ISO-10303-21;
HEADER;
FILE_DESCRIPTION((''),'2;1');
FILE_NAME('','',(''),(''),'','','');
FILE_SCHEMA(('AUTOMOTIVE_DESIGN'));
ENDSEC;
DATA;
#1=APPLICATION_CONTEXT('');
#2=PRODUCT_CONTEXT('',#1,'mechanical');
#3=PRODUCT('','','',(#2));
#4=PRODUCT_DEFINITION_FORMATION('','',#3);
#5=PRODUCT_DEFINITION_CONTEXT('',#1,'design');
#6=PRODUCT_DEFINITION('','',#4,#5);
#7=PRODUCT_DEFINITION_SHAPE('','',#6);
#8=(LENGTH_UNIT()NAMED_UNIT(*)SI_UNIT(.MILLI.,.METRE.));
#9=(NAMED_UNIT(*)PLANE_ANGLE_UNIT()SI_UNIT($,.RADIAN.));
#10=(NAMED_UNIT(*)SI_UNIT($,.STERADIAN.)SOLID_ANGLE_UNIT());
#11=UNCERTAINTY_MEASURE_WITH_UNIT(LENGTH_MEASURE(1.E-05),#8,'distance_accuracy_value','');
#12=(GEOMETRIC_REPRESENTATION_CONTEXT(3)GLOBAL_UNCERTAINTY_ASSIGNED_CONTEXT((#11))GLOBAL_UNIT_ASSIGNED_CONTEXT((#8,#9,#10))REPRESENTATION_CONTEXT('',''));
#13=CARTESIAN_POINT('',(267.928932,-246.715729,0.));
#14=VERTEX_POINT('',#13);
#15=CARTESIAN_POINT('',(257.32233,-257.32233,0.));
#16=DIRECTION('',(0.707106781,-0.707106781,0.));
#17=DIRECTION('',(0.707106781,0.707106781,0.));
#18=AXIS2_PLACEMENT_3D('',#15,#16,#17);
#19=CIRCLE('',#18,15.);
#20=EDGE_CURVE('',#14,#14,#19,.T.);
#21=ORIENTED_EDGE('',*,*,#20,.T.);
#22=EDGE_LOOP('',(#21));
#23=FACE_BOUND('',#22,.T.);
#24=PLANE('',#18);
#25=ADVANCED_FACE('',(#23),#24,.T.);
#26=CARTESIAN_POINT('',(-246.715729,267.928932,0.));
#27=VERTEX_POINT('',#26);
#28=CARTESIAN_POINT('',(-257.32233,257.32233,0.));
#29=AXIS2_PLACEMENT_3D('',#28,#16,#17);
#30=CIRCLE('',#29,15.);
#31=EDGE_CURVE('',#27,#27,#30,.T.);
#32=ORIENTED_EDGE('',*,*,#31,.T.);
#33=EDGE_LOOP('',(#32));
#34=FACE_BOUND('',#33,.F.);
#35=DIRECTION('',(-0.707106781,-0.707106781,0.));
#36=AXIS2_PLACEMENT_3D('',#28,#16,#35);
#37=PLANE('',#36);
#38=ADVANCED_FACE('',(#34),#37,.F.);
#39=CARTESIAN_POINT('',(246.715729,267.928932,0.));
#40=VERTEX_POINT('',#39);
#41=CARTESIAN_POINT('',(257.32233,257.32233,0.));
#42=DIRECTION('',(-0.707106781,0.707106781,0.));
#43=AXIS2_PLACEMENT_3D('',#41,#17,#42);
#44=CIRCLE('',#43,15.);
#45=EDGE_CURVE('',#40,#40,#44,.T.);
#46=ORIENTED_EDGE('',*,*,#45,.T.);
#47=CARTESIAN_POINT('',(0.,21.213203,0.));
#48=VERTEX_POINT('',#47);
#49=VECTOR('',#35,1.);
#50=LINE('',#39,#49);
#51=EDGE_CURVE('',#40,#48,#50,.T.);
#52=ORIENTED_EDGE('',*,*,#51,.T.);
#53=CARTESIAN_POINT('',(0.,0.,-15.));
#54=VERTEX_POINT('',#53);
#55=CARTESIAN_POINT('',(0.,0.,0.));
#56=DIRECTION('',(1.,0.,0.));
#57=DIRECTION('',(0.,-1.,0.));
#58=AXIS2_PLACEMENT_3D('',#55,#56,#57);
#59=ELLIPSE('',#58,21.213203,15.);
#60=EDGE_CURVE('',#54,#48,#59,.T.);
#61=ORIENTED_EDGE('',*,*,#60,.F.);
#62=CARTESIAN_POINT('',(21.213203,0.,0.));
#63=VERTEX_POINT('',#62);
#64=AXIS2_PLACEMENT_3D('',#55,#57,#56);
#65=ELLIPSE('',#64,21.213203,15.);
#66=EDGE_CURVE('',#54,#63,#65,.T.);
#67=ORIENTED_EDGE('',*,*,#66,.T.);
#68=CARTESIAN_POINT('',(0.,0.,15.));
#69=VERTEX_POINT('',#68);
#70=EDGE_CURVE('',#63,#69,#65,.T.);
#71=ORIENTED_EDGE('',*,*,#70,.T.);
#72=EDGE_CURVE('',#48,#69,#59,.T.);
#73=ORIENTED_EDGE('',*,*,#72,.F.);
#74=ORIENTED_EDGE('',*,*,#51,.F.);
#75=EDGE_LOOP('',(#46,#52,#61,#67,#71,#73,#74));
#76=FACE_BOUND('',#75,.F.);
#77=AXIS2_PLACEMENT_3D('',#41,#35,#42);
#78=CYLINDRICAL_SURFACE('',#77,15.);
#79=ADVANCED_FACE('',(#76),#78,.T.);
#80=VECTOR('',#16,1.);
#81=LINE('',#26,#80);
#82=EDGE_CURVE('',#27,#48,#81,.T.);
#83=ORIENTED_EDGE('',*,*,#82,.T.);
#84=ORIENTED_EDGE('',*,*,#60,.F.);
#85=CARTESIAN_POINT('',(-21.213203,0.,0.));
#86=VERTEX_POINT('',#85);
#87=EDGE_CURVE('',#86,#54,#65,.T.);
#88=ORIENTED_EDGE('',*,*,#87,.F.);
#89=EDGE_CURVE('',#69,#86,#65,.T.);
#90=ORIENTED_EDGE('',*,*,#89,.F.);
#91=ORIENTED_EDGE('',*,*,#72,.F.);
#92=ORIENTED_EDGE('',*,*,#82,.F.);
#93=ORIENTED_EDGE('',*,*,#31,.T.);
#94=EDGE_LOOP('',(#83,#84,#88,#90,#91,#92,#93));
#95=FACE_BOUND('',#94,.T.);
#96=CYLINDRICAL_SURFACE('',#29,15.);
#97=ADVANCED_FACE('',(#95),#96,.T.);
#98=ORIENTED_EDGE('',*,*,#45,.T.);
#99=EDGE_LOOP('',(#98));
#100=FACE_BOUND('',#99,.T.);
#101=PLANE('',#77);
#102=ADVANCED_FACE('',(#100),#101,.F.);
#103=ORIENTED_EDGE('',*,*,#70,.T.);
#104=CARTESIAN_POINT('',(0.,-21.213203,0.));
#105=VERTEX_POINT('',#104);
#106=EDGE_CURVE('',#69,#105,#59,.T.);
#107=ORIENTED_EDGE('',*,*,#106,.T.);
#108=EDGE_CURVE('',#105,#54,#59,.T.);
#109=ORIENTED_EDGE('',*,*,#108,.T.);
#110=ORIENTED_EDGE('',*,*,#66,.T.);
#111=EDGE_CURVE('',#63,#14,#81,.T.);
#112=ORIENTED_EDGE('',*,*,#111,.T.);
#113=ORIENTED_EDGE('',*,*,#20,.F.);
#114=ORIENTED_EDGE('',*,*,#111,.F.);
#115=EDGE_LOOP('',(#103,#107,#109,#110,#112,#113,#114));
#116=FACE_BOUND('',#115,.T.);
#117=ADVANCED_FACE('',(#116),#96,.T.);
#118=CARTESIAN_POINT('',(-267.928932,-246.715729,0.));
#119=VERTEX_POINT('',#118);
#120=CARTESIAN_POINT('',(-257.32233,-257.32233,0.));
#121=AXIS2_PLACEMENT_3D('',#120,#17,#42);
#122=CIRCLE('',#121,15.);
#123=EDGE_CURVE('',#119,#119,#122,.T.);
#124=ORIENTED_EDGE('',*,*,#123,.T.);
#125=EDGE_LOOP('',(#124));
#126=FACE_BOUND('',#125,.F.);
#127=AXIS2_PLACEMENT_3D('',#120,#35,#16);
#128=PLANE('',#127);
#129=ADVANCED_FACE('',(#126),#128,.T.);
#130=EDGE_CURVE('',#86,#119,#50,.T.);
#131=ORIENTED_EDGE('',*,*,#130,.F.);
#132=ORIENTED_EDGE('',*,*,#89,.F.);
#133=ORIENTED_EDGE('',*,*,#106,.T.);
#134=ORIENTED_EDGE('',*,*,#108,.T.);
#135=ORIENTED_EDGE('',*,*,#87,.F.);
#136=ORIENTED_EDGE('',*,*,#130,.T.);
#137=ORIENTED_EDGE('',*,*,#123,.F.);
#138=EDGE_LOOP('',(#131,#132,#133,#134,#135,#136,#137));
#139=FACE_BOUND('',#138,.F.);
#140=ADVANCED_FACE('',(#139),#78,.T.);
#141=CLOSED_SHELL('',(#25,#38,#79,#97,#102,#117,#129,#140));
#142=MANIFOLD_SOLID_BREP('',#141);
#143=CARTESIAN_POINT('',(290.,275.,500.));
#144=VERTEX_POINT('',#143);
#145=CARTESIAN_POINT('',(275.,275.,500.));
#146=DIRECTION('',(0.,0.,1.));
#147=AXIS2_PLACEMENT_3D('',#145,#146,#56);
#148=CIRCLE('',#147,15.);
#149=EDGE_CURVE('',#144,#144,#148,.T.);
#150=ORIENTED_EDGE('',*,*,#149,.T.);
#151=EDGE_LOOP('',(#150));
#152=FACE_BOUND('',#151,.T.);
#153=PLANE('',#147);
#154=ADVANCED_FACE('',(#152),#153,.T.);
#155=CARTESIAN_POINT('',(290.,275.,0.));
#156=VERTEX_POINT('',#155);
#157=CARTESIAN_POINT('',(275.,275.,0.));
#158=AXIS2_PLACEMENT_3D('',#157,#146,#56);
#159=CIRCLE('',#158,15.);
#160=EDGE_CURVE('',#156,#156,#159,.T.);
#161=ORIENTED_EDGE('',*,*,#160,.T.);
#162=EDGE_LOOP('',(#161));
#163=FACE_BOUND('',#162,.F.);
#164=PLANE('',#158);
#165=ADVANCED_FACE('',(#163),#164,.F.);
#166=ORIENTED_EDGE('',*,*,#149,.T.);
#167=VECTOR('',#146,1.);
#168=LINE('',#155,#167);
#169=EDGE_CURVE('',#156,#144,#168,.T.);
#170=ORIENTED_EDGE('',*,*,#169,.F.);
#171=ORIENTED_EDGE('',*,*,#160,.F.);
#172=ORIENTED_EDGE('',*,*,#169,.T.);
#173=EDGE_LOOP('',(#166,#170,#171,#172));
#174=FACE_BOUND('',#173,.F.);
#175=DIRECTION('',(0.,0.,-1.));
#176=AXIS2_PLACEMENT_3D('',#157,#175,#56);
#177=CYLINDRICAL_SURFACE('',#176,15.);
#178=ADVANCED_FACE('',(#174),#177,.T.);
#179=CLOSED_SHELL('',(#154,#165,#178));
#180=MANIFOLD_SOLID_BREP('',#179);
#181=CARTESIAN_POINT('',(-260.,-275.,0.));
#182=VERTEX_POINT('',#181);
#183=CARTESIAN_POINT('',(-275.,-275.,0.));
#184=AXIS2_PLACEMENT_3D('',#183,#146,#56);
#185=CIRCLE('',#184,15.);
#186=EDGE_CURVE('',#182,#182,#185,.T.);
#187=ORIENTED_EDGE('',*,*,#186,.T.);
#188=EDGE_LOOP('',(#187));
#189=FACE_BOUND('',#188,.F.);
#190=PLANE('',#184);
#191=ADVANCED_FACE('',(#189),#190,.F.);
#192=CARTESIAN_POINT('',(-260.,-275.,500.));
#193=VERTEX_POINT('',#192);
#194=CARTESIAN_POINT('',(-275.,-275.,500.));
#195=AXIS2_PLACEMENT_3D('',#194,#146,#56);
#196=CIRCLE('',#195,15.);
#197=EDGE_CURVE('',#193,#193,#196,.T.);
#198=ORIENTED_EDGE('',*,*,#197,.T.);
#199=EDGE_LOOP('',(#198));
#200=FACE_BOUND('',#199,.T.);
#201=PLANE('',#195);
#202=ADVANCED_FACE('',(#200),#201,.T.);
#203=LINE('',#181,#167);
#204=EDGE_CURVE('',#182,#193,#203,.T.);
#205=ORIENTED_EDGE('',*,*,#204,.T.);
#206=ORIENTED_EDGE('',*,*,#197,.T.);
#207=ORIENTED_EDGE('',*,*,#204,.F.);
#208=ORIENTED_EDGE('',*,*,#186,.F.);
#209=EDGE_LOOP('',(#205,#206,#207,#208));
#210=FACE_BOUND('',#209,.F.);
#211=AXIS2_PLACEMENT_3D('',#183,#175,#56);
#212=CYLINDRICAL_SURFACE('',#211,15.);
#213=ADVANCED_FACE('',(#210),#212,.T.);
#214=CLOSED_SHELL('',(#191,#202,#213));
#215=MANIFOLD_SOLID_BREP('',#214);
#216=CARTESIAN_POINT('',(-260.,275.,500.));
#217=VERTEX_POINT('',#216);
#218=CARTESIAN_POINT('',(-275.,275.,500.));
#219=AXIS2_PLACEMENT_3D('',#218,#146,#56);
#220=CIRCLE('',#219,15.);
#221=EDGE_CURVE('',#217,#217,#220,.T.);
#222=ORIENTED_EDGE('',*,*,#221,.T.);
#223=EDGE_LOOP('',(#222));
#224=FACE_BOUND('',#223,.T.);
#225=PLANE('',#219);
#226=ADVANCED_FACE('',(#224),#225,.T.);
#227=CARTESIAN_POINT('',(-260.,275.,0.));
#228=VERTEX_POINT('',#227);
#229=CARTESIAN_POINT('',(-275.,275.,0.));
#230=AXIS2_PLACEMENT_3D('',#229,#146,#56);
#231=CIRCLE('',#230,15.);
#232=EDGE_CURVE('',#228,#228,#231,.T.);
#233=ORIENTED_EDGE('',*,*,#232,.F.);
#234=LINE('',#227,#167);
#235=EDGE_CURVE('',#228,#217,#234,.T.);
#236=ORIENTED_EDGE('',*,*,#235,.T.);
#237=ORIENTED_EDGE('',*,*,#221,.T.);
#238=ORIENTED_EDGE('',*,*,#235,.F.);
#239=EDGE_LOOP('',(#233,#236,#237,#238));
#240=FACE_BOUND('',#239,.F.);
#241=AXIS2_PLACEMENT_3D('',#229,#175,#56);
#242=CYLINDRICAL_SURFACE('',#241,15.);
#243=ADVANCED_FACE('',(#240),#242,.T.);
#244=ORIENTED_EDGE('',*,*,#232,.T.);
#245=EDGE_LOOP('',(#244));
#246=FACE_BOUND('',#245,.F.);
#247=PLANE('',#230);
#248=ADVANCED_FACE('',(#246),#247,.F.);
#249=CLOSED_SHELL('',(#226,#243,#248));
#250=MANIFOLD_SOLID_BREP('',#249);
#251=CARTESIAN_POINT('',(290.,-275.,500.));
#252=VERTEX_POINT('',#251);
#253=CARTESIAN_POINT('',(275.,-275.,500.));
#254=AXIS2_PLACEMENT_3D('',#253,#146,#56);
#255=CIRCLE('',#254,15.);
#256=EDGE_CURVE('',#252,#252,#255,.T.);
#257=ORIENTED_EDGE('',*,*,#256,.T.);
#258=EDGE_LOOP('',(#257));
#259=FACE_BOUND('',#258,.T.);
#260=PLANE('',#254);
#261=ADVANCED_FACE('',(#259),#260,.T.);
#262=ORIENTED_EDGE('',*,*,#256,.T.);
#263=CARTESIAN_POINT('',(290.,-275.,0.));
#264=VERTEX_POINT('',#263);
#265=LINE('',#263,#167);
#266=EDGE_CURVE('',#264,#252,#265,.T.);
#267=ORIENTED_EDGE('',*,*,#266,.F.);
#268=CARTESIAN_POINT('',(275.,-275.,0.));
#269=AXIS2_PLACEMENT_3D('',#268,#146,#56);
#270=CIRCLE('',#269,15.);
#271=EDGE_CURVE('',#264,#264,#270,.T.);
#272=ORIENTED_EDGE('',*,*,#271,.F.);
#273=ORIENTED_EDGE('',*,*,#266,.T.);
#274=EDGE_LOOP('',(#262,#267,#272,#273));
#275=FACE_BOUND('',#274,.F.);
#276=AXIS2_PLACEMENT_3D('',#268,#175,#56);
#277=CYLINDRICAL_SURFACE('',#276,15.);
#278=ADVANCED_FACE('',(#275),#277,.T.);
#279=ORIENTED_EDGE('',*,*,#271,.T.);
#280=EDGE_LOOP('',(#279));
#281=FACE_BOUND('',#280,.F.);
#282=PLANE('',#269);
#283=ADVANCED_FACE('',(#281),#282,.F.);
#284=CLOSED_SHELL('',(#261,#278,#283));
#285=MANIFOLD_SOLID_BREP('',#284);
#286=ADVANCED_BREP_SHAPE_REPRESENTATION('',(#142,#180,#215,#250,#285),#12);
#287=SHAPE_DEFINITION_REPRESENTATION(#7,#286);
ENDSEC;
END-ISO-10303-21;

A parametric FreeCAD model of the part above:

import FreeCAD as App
import Part
import Sketcher

V = App.Vector

doc = App.newDocument("Part")
params = doc.addObject("Spreadsheet::Sheet", "Params")
for row, (alias, value) in enumerate([
    ("sketch1_diameter", "30 mm"),
    ("pad1_length", "500 mm"),
    ("sketch2_diameter", "30 mm"),
    ("pad2_length", "500 mm"),
    ("sketch3_diameter", "30 mm"),
    ("pad3_length", "500 mm"),
    ("sketch4_diameter", "30 mm"),
    ("pad4_length", "500 mm"),
    ("sketch5_diameter", "30 mm"),
], start=1):
    params.set(f"A{row}", alias)
    params.set(f"B{row}", "=" + value)
    params.setAlias(f"B{row}", alias)

body = doc.addObject("PartDesign::Body", "Body")

# Sketch on XY plane
sketch1 = body.newObject("Sketcher::SketchObject", "Sketch")
sketch1.AttachmentSupport = (doc.getObject("XY_Plane"), [""])
sketch1.MapMode = "FlatFace"
sketch1.addGeometry(Part.Circle(V(-275, 275, 0), V(0, 0, 1), 15), False)
sketch1.addConstraint(Sketcher.Constraint("Diameter", 0, 30.0))
sketch1.addConstraint(Sketcher.Constraint("DistanceX", 0, 3, -1, 1, 275.0))
sketch1.addConstraint(Sketcher.Constraint("DistanceY", -1, 1, 0, 3, 275.0))
sketch1.setExpression("Constraints[0]", "Params.sketch1_diameter")
pad1 = body.newObject("PartDesign::Pad", "Pad")
pad1.Profile = sketch1
pad1.setExpression("Length", "Params.pad1_length")
body2 = doc.addObject("PartDesign::Body", "Body001")

# Sketch on XY plane
sketch2 = body2.newObject("Sketcher::SketchObject", "Sketch001")
sketch2.AttachmentSupport = (doc.getObject("XY_Plane001"), [""])
sketch2.MapMode = "FlatFace"
sketch2.addGeometry(Part.Circle(V(275, 275, 0), V(0, 0, 1), 15), False)
sketch2.addConstraint(Sketcher.Constraint("Diameter", 0, 30.0))
sketch2.addConstraint(Sketcher.Constraint("DistanceX", -1, 1, 0, 3, 275.0))
sketch2.addConstraint(Sketcher.Constraint("DistanceY", -1, 1, 0, 3, 275.0))
sketch2.setExpression("Constraints[0]", "Params.sketch2_diameter")
pad2 = body2.newObject("PartDesign::Pad", "Pad001")
pad2.Profile = sketch2
pad2.setExpression("Length", "Params.pad2_length")
body3 = doc.addObject("PartDesign::Body", "Body002")

# Sketch on XY plane
sketch3 = body3.newObject("Sketcher::SketchObject", "Sketch002")
sketch3.AttachmentSupport = (doc.getObject("XY_Plane002"), [""])
sketch3.MapMode = "FlatFace"
sketch3.addGeometry(Part.Circle(V(-275, -275, 0), V(0, 0, 1), 15), False)
sketch3.addConstraint(Sketcher.Constraint("Diameter", 0, 30.0))
sketch3.addConstraint(Sketcher.Constraint("DistanceX", 0, 3, -1, 1, 275.0))
sketch3.addConstraint(Sketcher.Constraint("DistanceY", 0, 3, -1, 1, 275.0))
sketch3.setExpression("Constraints[0]", "Params.sketch3_diameter")
pad3 = body3.newObject("PartDesign::Pad", "Pad002")
pad3.Profile = sketch3
pad3.setExpression("Length", "Params.pad3_length")
body4 = doc.addObject("PartDesign::Body", "Body003")

# Sketch on XY plane
sketch4 = body4.newObject("Sketcher::SketchObject", "Sketch003")
sketch4.AttachmentSupport = (doc.getObject("XY_Plane003"), [""])
sketch4.MapMode = "FlatFace"
sketch4.addGeometry(Part.Circle(V(275, -275, 0), V(0, 0, 1), 15), False)
sketch4.addConstraint(Sketcher.Constraint("Diameter", 0, 30.0))
sketch4.addConstraint(Sketcher.Constraint("DistanceX", -1, 1, 0, 3, 275.0))
sketch4.addConstraint(Sketcher.Constraint("DistanceY", 0, 3, -1, 1, 275.0))
sketch4.setExpression("Constraints[0]", "Params.sketch4_diameter")
pad4 = body4.newObject("PartDesign::Pad", "Pad003")
pad4.Profile = sketch4
pad4.setExpression("Length", "Params.pad4_length")
body5 = doc.addObject("PartDesign::Body", "Body004")

# Sketch on an angled plane
sketch5 = body5.newObject("Sketcher::SketchObject", "Sketch004")
sketch5.Placement = App.Placement(V(-257.32233, 257.32233, 0), App.Rotation(V(0.707106781, 0.707106781, 0), V(0, 0, 0.999999999), V(0.707106781, -0.707106781, 0), "ZXY"))
sketch5.addGeometry(Part.Circle(V(0, 0, 0), V(0, 0, 1), 15), False)
sketch5.addConstraint(Sketcher.Constraint("Coincident", 0, 3, -1, 1))
sketch5.addConstraint(Sketcher.Constraint("Diameter", 0, 30.0))
sketch5.setExpression("Constraints[1]", "Params.sketch5_diameter")

# Sketch on an angled plane
sketch6 = body5.newObject("Sketcher::SketchObject", "Sketch005")
sketch6.Placement = App.Placement(V(0, 0, 0), App.Rotation(V(0.707106781, -0.707106781, 0), V(0, 0, 0.999999999), V(-0.707106781, -0.707106781, 0), "ZXY"))
sketch6.addGeometry(Part.LineSegment(V(-364, 0, 0), V(364, 0, 0)), False)
sketch6.addConstraint(Sketcher.Constraint("Horizontal", 0))
sketch6.addConstraint(Sketcher.Constraint("Symmetric", 0, 1, 0, 2, -1, 1))
sketch6.addConstraint(Sketcher.Constraint("DistanceX", 0, 1, 0, 2, 727.817459))
doc.recompute()

additivepipe = body5.newObject("PartDesign::AdditivePipe", "AdditivePipe")
additivepipe.Profile = sketch5
additivepipe.Spine = (sketch6, ["Edge1"])
body6 = doc.addObject("PartDesign::Body", "Body005")
doc.recompute()

body6.BaseFeature = body5
doc.recompute()

mirroring = doc.addObject("Part::Mirroring", "Mirroring")
mirroring.Source = body5
mirroring.Base = V(0, 0, 0)
mirroring.Normal = V(1, 0, 0)
body7 = doc.addObject("PartDesign::Body", "Body006")
body7.BaseFeature = mirroring
boolean = body6.newObject("PartDesign::Boolean", "Boolean")
boolean.Type = "Fuse"
boolean.addObjects([body7])
doc.recompute()
mirroring.Visibility = False

doc.recompute()
